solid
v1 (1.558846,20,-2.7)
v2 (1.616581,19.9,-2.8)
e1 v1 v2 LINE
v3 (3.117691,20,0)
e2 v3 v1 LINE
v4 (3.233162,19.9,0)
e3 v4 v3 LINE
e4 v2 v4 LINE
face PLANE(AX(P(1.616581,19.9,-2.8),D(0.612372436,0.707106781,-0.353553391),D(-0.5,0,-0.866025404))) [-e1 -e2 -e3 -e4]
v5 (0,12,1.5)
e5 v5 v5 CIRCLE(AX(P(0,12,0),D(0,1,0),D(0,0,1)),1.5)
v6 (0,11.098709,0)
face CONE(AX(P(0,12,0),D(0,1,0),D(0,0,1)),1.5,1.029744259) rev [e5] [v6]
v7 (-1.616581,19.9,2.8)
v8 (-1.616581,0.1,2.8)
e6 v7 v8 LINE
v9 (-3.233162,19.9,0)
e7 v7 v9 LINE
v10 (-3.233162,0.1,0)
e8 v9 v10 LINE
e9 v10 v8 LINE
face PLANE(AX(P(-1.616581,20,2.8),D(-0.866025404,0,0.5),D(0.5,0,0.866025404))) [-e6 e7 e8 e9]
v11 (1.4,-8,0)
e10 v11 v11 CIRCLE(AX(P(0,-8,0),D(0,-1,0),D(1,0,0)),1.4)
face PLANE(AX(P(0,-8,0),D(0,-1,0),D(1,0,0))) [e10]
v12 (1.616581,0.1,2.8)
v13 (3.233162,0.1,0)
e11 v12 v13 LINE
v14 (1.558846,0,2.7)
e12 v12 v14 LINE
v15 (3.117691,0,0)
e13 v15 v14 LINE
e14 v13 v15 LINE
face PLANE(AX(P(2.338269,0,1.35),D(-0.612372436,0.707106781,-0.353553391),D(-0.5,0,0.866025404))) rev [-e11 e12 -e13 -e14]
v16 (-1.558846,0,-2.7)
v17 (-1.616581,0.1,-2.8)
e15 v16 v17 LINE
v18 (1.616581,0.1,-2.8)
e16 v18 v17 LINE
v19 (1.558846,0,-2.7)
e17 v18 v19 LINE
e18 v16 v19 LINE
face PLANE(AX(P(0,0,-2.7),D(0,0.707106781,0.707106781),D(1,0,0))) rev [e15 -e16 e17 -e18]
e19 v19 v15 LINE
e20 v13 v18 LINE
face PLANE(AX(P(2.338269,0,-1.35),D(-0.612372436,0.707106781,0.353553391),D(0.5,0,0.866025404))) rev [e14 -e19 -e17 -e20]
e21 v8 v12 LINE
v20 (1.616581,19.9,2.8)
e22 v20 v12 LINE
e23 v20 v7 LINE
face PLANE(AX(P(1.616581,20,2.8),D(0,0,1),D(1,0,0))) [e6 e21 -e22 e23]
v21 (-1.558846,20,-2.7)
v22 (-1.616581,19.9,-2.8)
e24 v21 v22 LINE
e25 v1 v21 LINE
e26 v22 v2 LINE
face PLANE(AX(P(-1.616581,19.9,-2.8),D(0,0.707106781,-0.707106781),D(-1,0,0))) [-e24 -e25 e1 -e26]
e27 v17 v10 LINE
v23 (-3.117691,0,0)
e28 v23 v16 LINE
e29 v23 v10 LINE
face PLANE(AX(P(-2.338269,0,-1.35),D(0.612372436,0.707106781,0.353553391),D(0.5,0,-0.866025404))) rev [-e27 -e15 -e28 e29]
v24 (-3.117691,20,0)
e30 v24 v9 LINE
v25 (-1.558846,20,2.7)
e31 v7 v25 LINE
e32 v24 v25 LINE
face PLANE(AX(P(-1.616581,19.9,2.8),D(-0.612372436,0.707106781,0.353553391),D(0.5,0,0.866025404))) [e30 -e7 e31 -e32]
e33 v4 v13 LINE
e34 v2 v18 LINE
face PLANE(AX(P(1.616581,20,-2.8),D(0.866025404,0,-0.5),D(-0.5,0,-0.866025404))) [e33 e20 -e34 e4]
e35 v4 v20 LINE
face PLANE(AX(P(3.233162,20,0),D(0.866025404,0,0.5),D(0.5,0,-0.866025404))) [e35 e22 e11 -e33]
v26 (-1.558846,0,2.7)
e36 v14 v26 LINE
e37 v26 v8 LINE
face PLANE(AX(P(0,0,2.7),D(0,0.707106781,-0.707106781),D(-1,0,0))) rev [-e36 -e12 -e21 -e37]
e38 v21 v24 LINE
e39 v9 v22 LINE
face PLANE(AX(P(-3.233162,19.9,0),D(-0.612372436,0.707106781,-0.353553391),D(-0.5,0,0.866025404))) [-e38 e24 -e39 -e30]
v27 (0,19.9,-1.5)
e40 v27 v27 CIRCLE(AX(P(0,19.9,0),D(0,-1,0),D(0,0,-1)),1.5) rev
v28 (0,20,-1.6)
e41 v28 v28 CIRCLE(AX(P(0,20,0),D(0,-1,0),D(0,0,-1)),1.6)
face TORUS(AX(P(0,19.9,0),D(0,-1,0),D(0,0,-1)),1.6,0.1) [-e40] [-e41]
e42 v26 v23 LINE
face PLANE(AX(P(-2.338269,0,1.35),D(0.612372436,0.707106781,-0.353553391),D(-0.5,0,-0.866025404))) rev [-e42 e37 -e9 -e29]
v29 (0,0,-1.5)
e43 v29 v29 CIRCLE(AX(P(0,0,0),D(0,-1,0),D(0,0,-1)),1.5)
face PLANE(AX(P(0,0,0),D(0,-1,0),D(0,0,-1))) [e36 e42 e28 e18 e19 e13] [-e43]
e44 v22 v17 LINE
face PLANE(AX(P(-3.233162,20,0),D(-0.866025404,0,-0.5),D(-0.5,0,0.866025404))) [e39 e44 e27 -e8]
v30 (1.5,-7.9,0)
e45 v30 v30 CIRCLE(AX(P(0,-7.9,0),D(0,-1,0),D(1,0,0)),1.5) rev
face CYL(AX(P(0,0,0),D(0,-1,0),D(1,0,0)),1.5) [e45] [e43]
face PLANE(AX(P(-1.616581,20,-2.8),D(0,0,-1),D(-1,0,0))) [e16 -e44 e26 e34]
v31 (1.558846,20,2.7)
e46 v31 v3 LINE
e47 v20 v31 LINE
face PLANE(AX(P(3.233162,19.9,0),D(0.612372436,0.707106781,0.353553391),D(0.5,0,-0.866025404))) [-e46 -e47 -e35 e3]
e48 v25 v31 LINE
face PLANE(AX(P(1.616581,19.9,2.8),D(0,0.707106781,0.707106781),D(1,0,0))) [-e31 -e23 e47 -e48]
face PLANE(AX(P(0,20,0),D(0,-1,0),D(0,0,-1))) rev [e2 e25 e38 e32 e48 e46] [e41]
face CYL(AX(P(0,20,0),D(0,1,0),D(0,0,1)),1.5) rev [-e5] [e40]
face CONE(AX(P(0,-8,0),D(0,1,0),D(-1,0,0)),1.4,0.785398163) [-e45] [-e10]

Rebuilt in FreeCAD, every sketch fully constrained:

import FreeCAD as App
import Part
import Sketcher
Q = App.Units.Quantity


def edges_at(feature, points):
    """Names of the edges that pass closest to the given points."""
    edges = feature.Shape.Edges
    near = lambda p: min(range(len(edges)), key=lambda i: edges[i].distToShape(Part.Vertex(*p))[0])
    return sorted({f"Edge{near(p) + 1}" for p in points})


def add_polygon(sketch, points):
    """Adds a closed chain of lines whose ends are joined by coincident constraints."""
    first, n = sketch.GeometryCount, len(points)
    for a, b in zip(points, points[1:] + points[:1]):
        sketch.addGeometry(Part.LineSegment(App.Vector(*a, 0), App.Vector(*b, 0)), False)
    for i in range(n):
        sketch.addConstraint(Sketcher.Constraint("Coincident", first + i, 2, first + (i + 1) % n, 1))

doc = App.newDocument("Part")
params = doc.addObject("Spreadsheet::Sheet", "Params")
for row, (alias, value) in enumerate([
    ("pad1_length", "20 mm"),
    ("sketch2_height", "8 mm"),
    ("sketch2_width", "1.5 mm"),
    ("revolution_angle", "360 deg"),
    ("sketch3_diameter", "3 mm"),
    ("hole_diameter", "3 mm"),
    ("hole_depth", "8 mm"),
    ("fillet_radius", "0.1 mm"),
    ("chamfer_size", "0.1 mm"),
], start=1):
    params.set(f"A{row}", alias)
    params.set(f"B{row}", "=" + value)
    params.setAlias(f"B{row}", alias)

body = doc.addObject("PartDesign::Body", "Body")

# Sketch on XZ plane
sketch1 = body.newObject("Sketcher::SketchObject", "Sketch")
sketch1.AttachmentSupport = (doc.getObject("XZ_Plane"), [""])
sketch1.MapMode = "FlatFace"
add_polygon(sketch1, [(-1.6, 2.8), (-3.2, 0), (-1.6, -2.8), (1.6, -2.8), (3.2, 0), (1.6, 2.8)])  # lines 0-5
sketch1.addConstraint(Sketcher.Constraint("Horizontal", 2))
sketch1.addConstraint(Sketcher.Constraint("Horizontal", 5))
sketch1.addConstraint(Sketcher.Constraint("Symmetric", 0, 2, 3, 2, -1, 1))
sketch1.addConstraint(Sketcher.Constraint("Symmetric", 1, 2, 4, 2, -1, 1))
sketch1.addConstraint(Sketcher.Constraint("PointOnObject", 0, 2, -1))
sketch1.addConstraint(Sketcher.Constraint("Parallel", 0, 3))
sketch1.addConstraint(Sketcher.Constraint("Vertical", 2, 2, 4, 2))
sketch1.addConstraint(Sketcher.Constraint("Angle", 0, Q("-120 deg")))
sketch1.addConstraint(Sketcher.Constraint("DistanceY", 1, 2, -1, 1, Q("2.8 mm")))
sketch1.addConstraint(Sketcher.Constraint("DistanceX", 2, 1, 2, 2, Q("3.233162 mm")))
pad1 = body.newObject("PartDesign::Pad", "Pad")
pad1.Profile = sketch1
pad1.setExpression("Length", "Params.pad1_length")
pad1.Reversed = True

# Sketch on XY plane
sketch2 = body.newObject("Sketcher::SketchObject", "Sketch001")
sketch2.AttachmentSupport = (doc.getObject("XY_Plane"), [""])
sketch2.MapMode = "FlatFace"
add_polygon(sketch2, [(0, 0), (0, -8), (1.5, -8), (1.5, 0)])  # lines 0-3
sketch2.addConstraint(Sketcher.Constraint("Vertical", 0))
sketch2.addConstraint(Sketcher.Constraint("Horizontal", 1))
sketch2.addConstraint(Sketcher.Constraint("Vertical", 2))
sketch2.addConstraint(Sketcher.Constraint("Horizontal", 3))
sketch2.addConstraint(Sketcher.Constraint("Coincident", 3, 2, -1, 1))
sketch2.addConstraint(Sketcher.Constraint("DistanceY", 0, 2, 0, 1, Q("8 mm")))
sketch2.addConstraint(Sketcher.Constraint("DistanceX", 1, 1, 1, 2, Q("1.5 mm")))
sketch2.setExpression("Constraints[9]", "Params.sketch2_height")
sketch2.setExpression("Constraints[10]", "Params.sketch2_width")
revolution = body.newObject("PartDesign::Revolution", "Revolution")
revolution.Profile = sketch2
revolution.ReferenceAxis = (sketch2, ["V_Axis"])
revolution.setExpression("Angle", "Params.revolution_angle")

# Sketch on XZ plane
sketch3 = body.newObject("Sketcher::SketchObject", "Sketch002")
sketch3.AttachmentSupport = (doc.getObject("XZ_Plane"), [""])
sketch3.MapMode = "FlatFace"
sketch3.AttachmentOffset = App.Placement(App.Vector(0, 0, -20), App.Rotation())
sketch3.addGeometry(Part.Circle(App.Vector(0, 0, 0), App.Vector(0, 0, 1), 1.5), False)
sketch3.addConstraint(Sketcher.Constraint("Coincident", 0, 3, -1, 1))
sketch3.addConstraint(Sketcher.Constraint("Diameter", 0, Q("3 mm")))
sketch3.setExpression("Constraints[1]", "Params.sketch3_diameter")
doc.recompute()
hole = body.newObject("PartDesign::Hole", "Hole")
hole.Profile = sketch3
hole.ThreadType = "None"
hole.setExpression("Diameter", "Params.hole_diameter")
hole.DepthType = "Dimension"
hole.setExpression("Depth", "Params.hole_depth")
hole.DrillPoint = "Angled"
hole.DrillPointAngle = 118
hole.Reversed = True
doc.recompute()

fillet = body.newObject("PartDesign::Fillet", "Fillet")
fillet.Base = (hole, edges_at(hole, [(1.5, 20, 0)]))
fillet.setExpression("Radius", "Params.fillet_radius")
doc.recompute()

chamfer = body.newObject("PartDesign::Chamfer", "Chamfer")
chamfer.Base = (fillet, edges_at(fillet, [
    (-2.425, 20, -1.4),
    (0, 20, -2.8),
    (2.425, 20, -1.4),
    (2.425, 20, 1.4),
    (-1.5, -8, 0),
    (0, 20, 2.8),
    (2.425, 0, 1.4),
    (2.425, 0, -1.4),
    (0, 0, -2.8),
    (-2.425, 20, 1.4),
    (-2.425, 0, -1.4),
    (-2.425, 0, 1.4),
    (0, 0, 2.8),
]))
chamfer.setExpression("Size", "Params.chamfer_size")

doc.recompute()
